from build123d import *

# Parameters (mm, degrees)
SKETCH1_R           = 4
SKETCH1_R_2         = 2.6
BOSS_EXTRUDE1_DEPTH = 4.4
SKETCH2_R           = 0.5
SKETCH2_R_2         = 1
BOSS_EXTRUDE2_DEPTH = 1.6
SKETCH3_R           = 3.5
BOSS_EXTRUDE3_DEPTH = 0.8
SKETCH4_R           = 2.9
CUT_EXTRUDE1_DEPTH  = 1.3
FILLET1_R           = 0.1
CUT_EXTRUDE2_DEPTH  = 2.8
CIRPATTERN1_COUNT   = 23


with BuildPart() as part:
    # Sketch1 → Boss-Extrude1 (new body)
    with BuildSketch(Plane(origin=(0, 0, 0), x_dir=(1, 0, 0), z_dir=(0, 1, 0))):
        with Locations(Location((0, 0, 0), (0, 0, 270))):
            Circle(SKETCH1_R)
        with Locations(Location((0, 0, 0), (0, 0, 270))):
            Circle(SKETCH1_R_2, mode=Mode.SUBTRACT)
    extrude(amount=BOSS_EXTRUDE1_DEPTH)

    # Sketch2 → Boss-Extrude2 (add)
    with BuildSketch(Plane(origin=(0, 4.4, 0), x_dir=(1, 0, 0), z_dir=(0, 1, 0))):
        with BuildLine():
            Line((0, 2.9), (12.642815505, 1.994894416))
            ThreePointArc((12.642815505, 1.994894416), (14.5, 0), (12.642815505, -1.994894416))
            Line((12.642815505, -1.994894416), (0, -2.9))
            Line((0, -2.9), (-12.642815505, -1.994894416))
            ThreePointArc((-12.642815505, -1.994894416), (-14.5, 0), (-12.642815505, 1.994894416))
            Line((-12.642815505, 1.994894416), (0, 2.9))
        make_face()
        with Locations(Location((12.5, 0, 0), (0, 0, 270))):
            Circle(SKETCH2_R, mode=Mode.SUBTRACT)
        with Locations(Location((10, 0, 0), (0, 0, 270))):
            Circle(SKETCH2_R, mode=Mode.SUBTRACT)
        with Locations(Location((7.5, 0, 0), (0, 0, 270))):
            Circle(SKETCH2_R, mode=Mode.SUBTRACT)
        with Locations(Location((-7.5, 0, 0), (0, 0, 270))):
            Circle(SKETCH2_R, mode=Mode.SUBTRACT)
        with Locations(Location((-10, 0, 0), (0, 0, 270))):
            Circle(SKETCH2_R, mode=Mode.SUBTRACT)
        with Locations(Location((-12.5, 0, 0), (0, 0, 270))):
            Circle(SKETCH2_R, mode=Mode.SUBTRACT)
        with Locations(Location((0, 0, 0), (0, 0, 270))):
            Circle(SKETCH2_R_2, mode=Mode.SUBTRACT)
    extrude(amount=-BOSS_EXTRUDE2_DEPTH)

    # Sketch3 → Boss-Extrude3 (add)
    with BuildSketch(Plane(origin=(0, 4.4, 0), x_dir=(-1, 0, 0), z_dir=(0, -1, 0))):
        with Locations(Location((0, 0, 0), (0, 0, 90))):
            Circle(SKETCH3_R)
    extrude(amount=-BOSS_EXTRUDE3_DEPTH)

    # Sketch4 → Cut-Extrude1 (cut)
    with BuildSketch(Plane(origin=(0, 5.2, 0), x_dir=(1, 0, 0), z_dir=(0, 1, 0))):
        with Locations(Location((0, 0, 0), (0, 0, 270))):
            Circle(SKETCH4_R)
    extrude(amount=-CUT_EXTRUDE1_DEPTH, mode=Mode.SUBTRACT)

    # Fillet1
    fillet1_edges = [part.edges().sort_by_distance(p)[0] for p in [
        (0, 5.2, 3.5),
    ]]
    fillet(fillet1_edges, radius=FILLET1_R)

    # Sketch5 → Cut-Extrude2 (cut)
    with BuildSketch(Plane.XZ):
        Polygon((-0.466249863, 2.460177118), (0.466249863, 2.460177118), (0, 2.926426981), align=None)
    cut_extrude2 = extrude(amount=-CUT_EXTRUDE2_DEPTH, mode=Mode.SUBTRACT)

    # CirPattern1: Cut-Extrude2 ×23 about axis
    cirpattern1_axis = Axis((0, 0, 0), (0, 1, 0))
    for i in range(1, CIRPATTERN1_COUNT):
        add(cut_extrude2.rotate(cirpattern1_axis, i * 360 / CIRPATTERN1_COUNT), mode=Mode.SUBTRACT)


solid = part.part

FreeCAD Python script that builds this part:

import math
import FreeCAD as App
import Part
import Sketcher
from FreeCAD import Vector


def edges_at(feature, points):
    """Names of the edges that pass closest to the given points."""
    edges = feature.Shape.Edges
    near = lambda p: min(range(len(edges)), key=lambda i: edges[i].distToShape(Part.Vertex(*p))[0])
    return sorted({f"Edge{near(p) + 1}" for p in points})


def add_polygon(sketch, points):
    """Adds a closed chain of lines whose ends are joined by coincident constraints."""
    first, n = sketch.GeometryCount, len(points)
    for a, b in zip(points, points[1:] + points[:1]):
        sketch.addGeometry(Part.LineSegment(App.Vector(*a, 0), App.Vector(*b, 0)), False)
    for i in range(n):
        sketch.addConstraint(Sketcher.Constraint("Coincident", first + i, 2, first + (i + 1) % n, 1))

doc = App.newDocument("Part")
body = doc.addObject("PartDesign::Body", "Body")

# Sketch on XZ plane
sketch1 = body.newObject("Sketcher::SketchObject", "Sketch")
sketch1.AttachmentSupport = (doc.getObject("XZ_Plane"), [""])
sketch1.MapMode = "FlatFace"
sketch1.addGeometry(Part.Circle(Vector(0, 0, 0), Vector(0, 0, 1), 4), False)
sketch1.addGeometry(Part.Circle(Vector(0, 0, 0), Vector(0, 0, 1), 2.6), False)
sketch1.addConstraint(Sketcher.Constraint("Coincident", 0, 3, -1, 1))
sketch1.addConstraint(Sketcher.Constraint("Coincident", 1, 3, -1, 1))
sketch1.addConstraint(Sketcher.Constraint("Diameter", 0, 8.0))
sketch1.addConstraint(Sketcher.Constraint("Diameter", 1, 5.2))
pad1 = body.newObject("PartDesign::Pad", "Pad")
pad1.Profile = sketch1
pad1.Length = 4.4
pad1.Reversed = True

# Sketch on XZ plane
sketch2 = body.newObject("Sketcher::SketchObject", "Sketch001")
sketch2.AttachmentSupport = (doc.getObject("XZ_Plane"), [""])
sketch2.MapMode = "FlatFace"
sketch2.AttachmentOffset = App.Placement(Vector(0, 0, -4.4), App.Rotation())
sketch2.addGeometry(Part.LineSegment(Vector(12.642816, -1.994894, 0), Vector(0, -2.9, 0)), False)
sketch2.addGeometry(Part.LineSegment(Vector(0, -2.9, 0), Vector(-12.642816, -1.994894, 0)), False)
sketch2.addGeometry(Part.ArcOfCircle(Part.Circle(Vector(-12.5, 0, 0), Vector(0, 0, 1), 2), math.radians(94.094848), math.radians(265.905152)), False)
sketch2.addGeometry(Part.LineSegment(Vector(-12.642816, 1.994894, 0), Vector(0, 2.9, 0)), False)
sketch2.addGeometry(Part.LineSegment(Vector(0, 2.9, 0), Vector(12.642816, 1.994894, 0)), False)
sketch2.addGeometry(Part.ArcOfCircle(Part.Circle(Vector(12.5, 0, 0), Vector(0, 0, 1), 2), math.radians(-85.905152), math.radians(85.905152)), False)
sketch2.addGeometry(Part.Circle(Vector(12.5, 0, 0), Vector(0, 0, 1), 0.5), False)
sketch2.addGeometry(Part.Circle(Vector(10, 0, 0), Vector(0, 0, 1), 0.5), False)
sketch2.addGeometry(Part.Circle(Vector(7.5, 0, 0), Vector(0, 0, 1), 0.5), False)
sketch2.addGeometry(Part.Circle(Vector(0, 0, 0), Vector(0, 0, 1), 1), False)
sketch2.addGeometry(Part.Circle(Vector(-7.5, 0, 0), Vector(0, 0, 1), 0.5), False)
sketch2.addGeometry(Part.Circle(Vector(-10, 0, 0), Vector(0, 0, 1), 0.5), False)
sketch2.addGeometry(Part.Circle(Vector(-12.5, 0, 0), Vector(0, 0, 1), 0.5), False)
sketch2.addConstraint(Sketcher.Constraint("Coincident", 0, 2, 1, 1))
sketch2.addConstraint(Sketcher.Constraint("Tangent", 1, 2, 2, 2))
sketch2.addConstraint(Sketcher.Constraint("Tangent", 2, 1, 3, 1))
sketch2.addConstraint(Sketcher.Constraint("Coincident", 3, 2, 4, 1))
sketch2.addConstraint(Sketcher.Constraint("Tangent", 4, 2, 5, 2))
sketch2.addConstraint(Sketcher.Constraint("Tangent", 5, 1, 0, 1))
sketch2.addConstraint(Sketcher.Constraint("Coincident", 9, 3, -1, 1))
sketch2.addConstraint(Sketcher.Constraint("Coincident", 6, 3, 5, 3))
sketch2.addConstraint(Sketcher.Constraint("Coincident", 12, 3, 2, 3))
sketch2.addConstraint(Sketcher.Constraint("Equal", 2, 5))
sketch2.addConstraint(Sketcher.Constraint("Equal", 6, 7))
sketch2.addConstraint(Sketcher.Constraint("Equal", 7, 8))
sketch2.addConstraint(Sketcher.Constraint("Equal", 8, 10))
sketch2.addConstraint(Sketcher.Constraint("Equal", 10, 11))
sketch2.addConstraint(Sketcher.Constraint("Equal", 11, 12))
sketch2.addConstraint(Sketcher.Constraint("Symmetric", 2, 3, 5, 3, -1, 1))
sketch2.addConstraint(Sketcher.Constraint("Symmetric", 8, 3, 10, 3, -1, 1))
sketch2.addConstraint(Sketcher.Constraint("Symmetric", 7, 3, 11, 3, -1, 1))
sketch2.addConstraint(Sketcher.Constraint("Symmetric", 0, 2, 3, 2, -1, 1))
sketch2.addConstraint(Sketcher.Constraint("Symmetric", 2, 1, 4, 2, -2))
sketch2.addConstraint(Sketcher.Constraint("PointOnObject", 7, 3, -1))
sketch2.addConstraint(Sketcher.Constraint("PointOnObject", 8, 3, -1))
sketch2.addConstraint(Sketcher.Constraint("Diameter", 6, 1.0))
sketch2.addConstraint(Sketcher.Constraint("Diameter", 9, 2.0))
sketch2.addConstraint(Sketcher.Constraint("Radius", 2, 2.0))
sketch2.addConstraint(Sketcher.Constraint("DistanceX", -1, 1, 7, 3, 10.0))
sketch2.addConstraint(Sketcher.Constraint("DistanceX", 2, 3, 5, 3, 25.0))
sketch2.addConstraint(Sketcher.Constraint("DistanceX", 8, 3, 5, 3, 5.0))
sketch2.addConstraint(Sketcher.Constraint("DistanceY", 0, 2, -1, 1, 2.9))
pad2 = body.newObject("PartDesign::Pad", "Pad001")
pad2.Profile = sketch2
pad2.Length = 1.6

# Sketch on XZ plane
sketch3 = body.newObject("Sketcher::SketchObject", "Sketch002")
sketch3.AttachmentSupport = (doc.getObject("XZ_Plane"), [""])
sketch3.MapMode = "FlatFace"
sketch3.AttachmentOffset = App.Placement(Vector(0, 0, -4.4), App.Rotation())
sketch3.addGeometry(Part.Circle(Vector(0, 0, 0), Vector(0, 0, 1), 3.5), False)
sketch3.addConstraint(Sketcher.Constraint("Coincident", 0, 3, -1, 1))
sketch3.addConstraint(Sketcher.Constraint("Diameter", 0, 7.0))
pad3 = body.newObject("PartDesign::Pad", "Pad002")
pad3.Profile = sketch3
pad3.Length = 0.8
pad3.Reversed = True

# Sketch on XZ plane
sketch4 = body.newObject("Sketcher::SketchObject", "Sketch003")
sketch4.AttachmentSupport = (doc.getObject("XZ_Plane"), [""])
sketch4.MapMode = "FlatFace"
sketch4.AttachmentOffset = App.Placement(Vector(0, 0, -5.2), App.Rotation())
sketch4.addGeometry(Part.Circle(Vector(0, 0, 0), Vector(0, 0, 1), 2.9), False)
sketch4.addConstraint(Sketcher.Constraint("Coincident", 0, 3, -1, 1))
sketch4.addConstraint(Sketcher.Constraint("Diameter", 0, 5.8))
pocket1 = body.newObject("PartDesign::Pocket", "Pocket")
pocket1.Profile = sketch4
pocket1.Length = 1.3
pocket1.Reversed = True
doc.recompute()

fillet = body.newObject("PartDesign::Fillet", "Fillet")
fillet.Base = (pocket1, edges_at(pocket1, [(0, 5.2, 3.5)]))
fillet.Radius = 0.1

# Sketch on XZ plane
sketch5 = body.newObject("Sketcher::SketchObject", "Sketch004")
sketch5.AttachmentSupport = (doc.getObject("XZ_Plane"), [""])
sketch5.MapMode = "FlatFace"
add_polygon(sketch5, [(-0.46625, 2.460177), (0.46625, 2.460177), (0, 2.926427)])  # lines 0-2
sketch5.addConstraint(Sketcher.Constraint("Horizontal", 0))
sketch5.addConstraint(Sketcher.Constraint("PointOnObject", 1, 2, -2))
sketch5.addConstraint(Sketcher.Constraint("Perpendicular", 1, 2))
sketch5.addConstraint(Sketcher.Constraint("Equal", 1, 2))
sketch5.addConstraint(Sketcher.Constraint("DistanceX", 0, 1, 0, 2, 0.9325))
sketch5.addConstraint(Sketcher.Constraint("DistanceY", -1, 1, 0, 2, 2.460177))
pocket2 = body.newObject("PartDesign::Pocket", "Pocket001")
pocket2.Profile = sketch5
pocket2.Length = 2.8
doc.recompute()

polarpattern = body.newObject("PartDesign::PolarPattern", "PolarPattern")
polarpattern.Originals = [pocket2]
polarpattern.Axis = (doc.getObject("Y_Axis"), [""])
polarpattern.Angle = 360
polarpattern.Occurrences = 23
body.Tip = polarpattern

doc.recompute()
